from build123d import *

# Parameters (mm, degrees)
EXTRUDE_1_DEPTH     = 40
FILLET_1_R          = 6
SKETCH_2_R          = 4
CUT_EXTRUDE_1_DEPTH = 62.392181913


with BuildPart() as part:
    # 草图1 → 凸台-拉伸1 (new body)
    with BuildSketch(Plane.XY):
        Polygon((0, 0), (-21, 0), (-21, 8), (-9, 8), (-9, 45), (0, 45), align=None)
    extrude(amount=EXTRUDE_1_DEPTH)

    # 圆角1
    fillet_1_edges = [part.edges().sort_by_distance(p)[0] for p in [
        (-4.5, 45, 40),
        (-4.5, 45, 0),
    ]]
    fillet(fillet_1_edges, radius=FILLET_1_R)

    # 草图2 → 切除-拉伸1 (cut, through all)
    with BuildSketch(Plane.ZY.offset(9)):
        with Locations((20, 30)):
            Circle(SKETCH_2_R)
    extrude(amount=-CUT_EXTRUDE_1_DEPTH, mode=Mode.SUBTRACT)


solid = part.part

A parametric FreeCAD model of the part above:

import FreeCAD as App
import Part
import Sketcher
from FreeCAD import Vector
Q = App.Units.Quantity


def edges_at(feature, points):
    """Names of the edges that pass closest to the given points."""
    edges = feature.Shape.Edges
    near = lambda p: min(range(len(edges)), key=lambda i: edges[i].distToShape(Part.Vertex(*p))[0])
    return sorted({f"Edge{near(p) + 1}" for p in points})


def add_polygon(sketch, points):
    """Adds a closed chain of lines whose ends are joined by coincident constraints."""
    first, n = sketch.GeometryCount, len(points)
    for a, b in zip(points, points[1:] + points[:1]):
        sketch.addGeometry(Part.LineSegment(App.Vector(*a, 0), App.Vector(*b, 0)), False)
    for i in range(n):
        sketch.addConstraint(Sketcher.Constraint("Coincident", first + i, 2, first + (i + 1) % n, 1))

doc = App.newDocument("Part")
body = doc.addObject("PartDesign::Body", "Body")

# Sketch on XY plane
sketch1 = body.newObject("Sketcher::SketchObject", "Sketch")
sketch1.AttachmentSupport = (doc.getObject("XY_Plane"), [""])
sketch1.MapMode = "FlatFace"
add_polygon(sketch1, [(-21, 0), (0, 0), (0, 45), (-9, 45), (-9, 8), (-21, 8)])  # lines 0-5
sketch1.addConstraint([
    Sketcher.Constraint("Horizontal", 0),
    Sketcher.Constraint("Vertical", 1),
    Sketcher.Constraint("Horizontal", 2),
    Sketcher.Constraint("Vertical", 3),
    Sketcher.Constraint("Horizontal", 4),
    Sketcher.Constraint("Vertical", 5),
    Sketcher.Constraint("Coincident", 0, 2, -1, 1),
    Sketcher.Constraint("DistanceX", 0, 1, 0, 2, Q("21 mm")),
    Sketcher.Constraint("DistanceX", 2, 2, 2, 1, Q("9 mm")),
    Sketcher.Constraint("DistanceY", 1, 1, 1, 2, Q("45 mm")),
    Sketcher.Constraint("DistanceY", 3, 2, 3, 1, Q("37 mm")),
])
pad1 = body.newObject("PartDesign::Pad", "Pad")
pad1.Profile = sketch1
pad1.Length = 40
doc.recompute()

fillet = body.newObject("PartDesign::Fillet", "Fillet")
fillet.Base = (pad1, edges_at(pad1, [(-4.5, 45, 40), (-4.5, 45, 0)]))
fillet.Radius = 6

# Sketch on YZ plane
sketch2 = body.newObject("Sketcher::SketchObject", "Sketch001")
sketch2.AttachmentSupport = (doc.getObject("YZ_Plane"), [""])
sketch2.MapMode = "FlatFace"
sketch2.AttachmentOffset = App.Placement(Vector(0, 0, -9), App.Rotation())
sketch2.addGeometry(Part.Circle(Vector(30, 20, 0), Vector(0, 0, 1), 4), False)
sketch2.addConstraint([
    Sketcher.Constraint("Diameter", 0, Q("8 mm")),
    Sketcher.Constraint("DistanceX", -1, 1, 0, 3, Q("30 mm")),
    Sketcher.Constraint("DistanceY", -1, 1, 0, 3, Q("20 mm")),
])
pocket1 = body.newObject("PartDesign::Pocket", "Pocket")
pocket1.Profile = sketch2
pocket1.Type = "ThroughAll"
pocket1.Reversed = True

doc.recompute()
